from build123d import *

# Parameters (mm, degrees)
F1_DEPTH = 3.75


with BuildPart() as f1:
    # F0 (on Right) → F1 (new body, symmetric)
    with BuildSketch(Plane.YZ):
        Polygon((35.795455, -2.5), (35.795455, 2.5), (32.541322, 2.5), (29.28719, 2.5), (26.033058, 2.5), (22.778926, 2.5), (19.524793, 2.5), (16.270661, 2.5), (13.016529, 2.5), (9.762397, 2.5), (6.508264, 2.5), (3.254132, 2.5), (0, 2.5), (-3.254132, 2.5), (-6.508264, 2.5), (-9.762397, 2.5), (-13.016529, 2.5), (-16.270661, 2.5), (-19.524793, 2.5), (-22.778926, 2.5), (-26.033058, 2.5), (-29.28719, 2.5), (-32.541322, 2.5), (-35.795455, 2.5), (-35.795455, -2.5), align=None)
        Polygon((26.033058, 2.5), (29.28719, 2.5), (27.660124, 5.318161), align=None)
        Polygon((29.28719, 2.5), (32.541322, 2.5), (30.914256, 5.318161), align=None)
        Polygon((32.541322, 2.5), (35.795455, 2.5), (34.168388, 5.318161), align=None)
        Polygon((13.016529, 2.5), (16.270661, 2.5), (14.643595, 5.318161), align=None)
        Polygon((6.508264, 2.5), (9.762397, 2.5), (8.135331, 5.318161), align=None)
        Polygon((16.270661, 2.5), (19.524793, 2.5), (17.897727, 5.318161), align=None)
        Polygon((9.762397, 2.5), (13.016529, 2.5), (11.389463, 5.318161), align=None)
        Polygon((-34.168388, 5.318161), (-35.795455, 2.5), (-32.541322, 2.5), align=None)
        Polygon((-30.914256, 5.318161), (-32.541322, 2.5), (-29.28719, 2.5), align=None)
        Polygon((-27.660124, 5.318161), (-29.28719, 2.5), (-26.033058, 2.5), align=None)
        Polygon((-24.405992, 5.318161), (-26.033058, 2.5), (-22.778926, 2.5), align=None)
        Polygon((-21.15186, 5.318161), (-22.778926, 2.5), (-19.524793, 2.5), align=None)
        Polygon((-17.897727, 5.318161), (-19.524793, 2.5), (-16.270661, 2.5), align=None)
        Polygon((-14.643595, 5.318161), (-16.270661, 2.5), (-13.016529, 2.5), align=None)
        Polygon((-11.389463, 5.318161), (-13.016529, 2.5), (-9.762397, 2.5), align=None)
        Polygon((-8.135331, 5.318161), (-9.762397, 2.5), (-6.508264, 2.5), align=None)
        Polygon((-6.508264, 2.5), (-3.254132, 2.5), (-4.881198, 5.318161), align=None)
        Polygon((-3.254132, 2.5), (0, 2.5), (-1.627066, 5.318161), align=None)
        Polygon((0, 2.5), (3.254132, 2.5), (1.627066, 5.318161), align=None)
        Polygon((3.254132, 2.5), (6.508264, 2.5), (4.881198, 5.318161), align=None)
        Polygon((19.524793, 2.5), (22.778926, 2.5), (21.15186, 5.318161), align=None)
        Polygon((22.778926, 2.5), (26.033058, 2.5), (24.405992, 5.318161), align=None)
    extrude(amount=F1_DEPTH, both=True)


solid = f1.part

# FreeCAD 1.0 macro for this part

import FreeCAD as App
import Part
import Sketcher
Q = App.Units.Quantity


def add_polygon(sketch, points):
    """Adds a closed chain of lines whose ends are joined by coincident constraints."""
    first, n = sketch.GeometryCount, len(points)
    for a, b in zip(points, points[1:] + points[:1]):
        sketch.addGeometry(Part.LineSegment(App.Vector(*a, 0), App.Vector(*b, 0)), False)
    for i in range(n):
        sketch.addConstraint(Sketcher.Constraint("Coincident", first + i, 2, first + (i + 1) % n, 1))

doc = App.newDocument("Part")
body = doc.addObject("PartDesign::Body", "Body")

sketch1 = body.newObject("Sketcher::SketchObject", "Sketch")
sketch1.AttachmentSupport = (doc.getObject("YZ_Plane"), [""])
sketch1.MapMode = "FlatFace"
add_polygon(sketch1, [(35.795455, -2.5), (35.795455, 2.5), (34.168388, 5.318161), (32.541322, 2.5), (30.914256, 5.318161), (29.28719, 2.5), (27.660124, 5.318161), (26.033058, 2.5), (24.405992, 5.318161), (22.778926, 2.5), (21.15186, 5.318161), (19.524793, 2.5), (17.897727, 5.318161), (16.270661, 2.5), (14.643595, 5.318161), (13.016529, 2.5), (11.389463, 5.318161), (9.762397, 2.5), (8.135331, 5.318161), (6.508264, 2.5), (4.881198, 5.318161), (3.254132, 2.5), (1.627066, 5.318161), (0, 2.5), (-1.627066, 5.318161), (-3.254132, 2.5), (-4.881198, 5.318161), (-6.508264, 2.5), (-8.135331, 5.318161), (-9.762397, 2.5), (-11.389463, 5.318161), (-13.016529, 2.5), (-14.643595, 5.318161), (-16.270661, 2.5), (-17.897727, 5.318161), (-19.524793, 2.5), (-21.15186, 5.318161), (-22.778926, 2.5), (-24.405992, 5.318161), (-26.033058, 2.5), (-27.660124, 5.318161), (-29.28719, 2.5), (-30.914256, 5.318161), (-32.541322, 2.5), (-34.168388, 5.318161), (-35.795455, 2.5), (-35.795455, -2.5)])
sketch1.addConstraint([
    Sketcher.Constraint("Vertical", 0),
    Sketcher.Constraint("Vertical", 45),
    Sketcher.Constraint("Horizontal", 46),
    Sketcher.Constraint("Symmetric", 0, 2, 45, 2, -1, 1),
    Sketcher.Constraint("Symmetric", 21, 2, 23, 2, -2),
    Sketcher.Constraint("Symmetric", 20, 2, 24, 2, -2),
    Sketcher.Constraint("Symmetric", 19, 2, 25, 2, -2),
    Sketcher.Constraint("Symmetric", 18, 2, 26, 2, -2),
    Sketcher.Constraint("Symmetric", 17, 2, 27, 2, -2),
    Sketcher.Constraint("Symmetric", 16, 2, 28, 2, -2),
    Sketcher.Constraint("Symmetric", 15, 2, 29, 2, -2),
    Sketcher.Constraint("Symmetric", 14, 2, 30, 2, -2),
    Sketcher.Constraint("Symmetric", 13, 2, 31, 2, -2),
    Sketcher.Constraint("Symmetric", 12, 2, 32, 2, -2),
    Sketcher.Constraint("Symmetric", 11, 2, 33, 2, -2),
    Sketcher.Constraint("Symmetric", 10, 2, 34, 2, -2),
    Sketcher.Constraint("Symmetric", 9, 2, 35, 2, -2),
    Sketcher.Constraint("Symmetric", 8, 2, 36, 2, -2),
    Sketcher.Constraint("Symmetric", 7, 2, 37, 2, -2),
    Sketcher.Constraint("Symmetric", 6, 2, 38, 2, -2),
    Sketcher.Constraint("Symmetric", 5, 2, 39, 2, -2),
    Sketcher.Constraint("Symmetric", 4, 2, 40, 2, -2),
    Sketcher.Constraint("Symmetric", 3, 2, 41, 2, -2),
    Sketcher.Constraint("Symmetric", 2, 2, 42, 2, -2),
    Sketcher.Constraint("Symmetric", 1, 2, 43, 2, -2),
    Sketcher.Constraint("PointOnObject", 22, 2, -2),
    Sketcher.Constraint("Parallel", 1, 3),
    Sketcher.Constraint("Parallel", 2, 4),
    Sketcher.Constraint("Parallel", 3, 5),
    Sketcher.Constraint("Parallel", 4, 6),
    Sketcher.Constraint("Parallel", 5, 7),
    Sketcher.Constraint("Parallel", 6, 8),
    Sketcher.Constraint("Parallel", 7, 9),
    Sketcher.Constraint("Parallel", 8, 10),
    Sketcher.Constraint("Parallel", 9, 11),
    Sketcher.Constraint("Parallel", 10, 12),
    Sketcher.Constraint("Parallel", 11, 13),
    Sketcher.Constraint("Parallel", 12, 14),
    Sketcher.Constraint("Parallel", 13, 15),
    Sketcher.Constraint("Parallel", 14, 16),
    Sketcher.Constraint("Parallel", 15, 17),
    Sketcher.Constraint("Parallel", 16, 18),
    Sketcher.Constraint("Parallel", 17, 19),
    Sketcher.Constraint("Parallel", 18, 20),
    Sketcher.Constraint("Parallel", 19, 21),
    Sketcher.Constraint("Parallel", 20, 22),
    Sketcher.Constraint("Parallel", 21, 23),
    Sketcher.Constraint("Parallel", 42, 44),
    Sketcher.Constraint("Horizontal", 0, 2, 2, 2),
    Sketcher.Constraint("Horizontal", 1, 2, 3, 2),
    Sketcher.Constraint("Horizontal", 2, 2, 4, 2),
    Sketcher.Constraint("Horizontal", 3, 2, 5, 2),
    Sketcher.Constraint("Horizontal", 4, 2, 6, 2),
    Sketcher.Constraint("Horizontal", 5, 2, 7, 2),
    Sketcher.Constraint("Horizontal", 6, 2, 8, 2),
    Sketcher.Constraint("Horizontal", 7, 2, 9, 2),
    Sketcher.Constraint("Horizontal", 8, 2, 10, 2),
    Sketcher.Constraint("Horizontal", 9, 2, 11, 2),
    Sketcher.Constraint("Horizontal", 10, 2, 12, 2),
    Sketcher.Constraint("Horizontal", 11, 2, 13, 2),
    Sketcher.Constraint("Horizontal", 12, 2, 14, 2),
    Sketcher.Constraint("Horizontal", 13, 2, 15, 2),
    Sketcher.Constraint("Horizontal", 14, 2, 16, 2),
    Sketcher.Constraint("Horizontal", 15, 2, 17, 2),
    Sketcher.Constraint("Horizontal", 16, 2, 18, 2),
    Sketcher.Constraint("Horizontal", 17, 2, 19, 2),
    Sketcher.Constraint("Horizontal", 18, 2, 20, 2),
    Sketcher.Constraint("Horizontal", 19, 2, 21, 2),
    Sketcher.Constraint("Horizontal", 20, 2, 22, 2),
    Sketcher.Constraint("DistanceY", 0, 1, 0, 2, 5.0),
    Sketcher.Constraint("Angle", 1, Q("120.000015 deg")),
    Sketcher.Constraint("DistanceX", 46, 1, 46, 2, 71.59091),
])
pad1 = body.newObject("PartDesign::Pad", "Pad")
pad1.Profile = sketch1
pad1.Length = 7.5
pad1.Midplane = True

doc.recompute()
